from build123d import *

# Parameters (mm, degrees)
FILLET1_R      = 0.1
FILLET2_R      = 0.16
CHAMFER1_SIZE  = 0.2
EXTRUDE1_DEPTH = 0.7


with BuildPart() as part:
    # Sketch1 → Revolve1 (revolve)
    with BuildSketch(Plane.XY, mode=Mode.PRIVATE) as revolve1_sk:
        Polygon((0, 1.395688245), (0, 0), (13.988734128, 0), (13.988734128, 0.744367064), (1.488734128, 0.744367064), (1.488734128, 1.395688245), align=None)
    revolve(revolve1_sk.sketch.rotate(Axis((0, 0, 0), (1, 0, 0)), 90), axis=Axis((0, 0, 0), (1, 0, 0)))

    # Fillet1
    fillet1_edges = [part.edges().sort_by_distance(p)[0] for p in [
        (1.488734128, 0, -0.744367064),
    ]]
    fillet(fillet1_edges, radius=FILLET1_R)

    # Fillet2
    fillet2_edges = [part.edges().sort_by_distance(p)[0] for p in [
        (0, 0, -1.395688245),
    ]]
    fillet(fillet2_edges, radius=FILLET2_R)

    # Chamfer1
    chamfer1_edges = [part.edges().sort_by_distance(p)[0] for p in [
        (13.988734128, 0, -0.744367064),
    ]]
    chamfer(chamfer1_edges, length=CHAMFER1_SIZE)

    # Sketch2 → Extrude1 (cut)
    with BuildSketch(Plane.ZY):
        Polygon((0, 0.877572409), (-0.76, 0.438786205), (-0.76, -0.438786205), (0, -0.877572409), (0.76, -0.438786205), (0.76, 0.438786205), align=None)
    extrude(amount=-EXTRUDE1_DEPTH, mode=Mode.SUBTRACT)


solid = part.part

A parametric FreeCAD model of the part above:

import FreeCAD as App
import Part
import Sketcher

V = App.Vector
Q = App.Units.Quantity


def edges_at(feature, points):
    """Names of the edges that pass closest to the given points."""
    edges = feature.Shape.Edges
    near = lambda p: min(range(len(edges)), key=lambda i: edges[i].distToShape(Part.Vertex(*p))[0])
    return sorted({f"Edge{near(p) + 1}" for p in points})


def add_polygon(sketch, points):
    """Adds a closed chain of lines whose ends are joined by coincident constraints."""
    first, n = sketch.GeometryCount, len(points)
    for a, b in zip(points, points[1:] + points[:1]):
        sketch.addGeometry(Part.LineSegment(App.Vector(*a, 0), App.Vector(*b, 0)), False)
    for i in range(n):
        sketch.addConstraint(Sketcher.Constraint("Coincident", first + i, 2, first + (i + 1) % n, 1))

doc = App.newDocument("Part")
params = doc.addObject("Spreadsheet::Sheet", "Params")
for row, (alias, value) in enumerate([
    ("sketch1_width", "12.5 mm"),
    ("revolution_angle", "360 deg"),
    ("fillet_radius", "0.1 mm"),
    ("fillet2_radius", "0.16 mm"),
    ("chamfer_size", "0.2 mm"),
    ("pocket1_length", "0.7 mm"),
], start=1):
    params.set(f"A{row}", alias)
    params.set(f"B{row}", "=" + value)
    params.setAlias(f"B{row}", alias)

body = doc.addObject("PartDesign::Body", "Body")

sketch1 = body.newObject("Sketcher::SketchObject", "Sketch")
sketch1.AttachmentSupport = (doc.getObject("XY_Plane"), [""])
sketch1.MapMode = "FlatFace"
add_polygon(sketch1, [(0, 1.395688), (0, 0), (13.988734, 0), (13.988734, 0.744367), (1.488734, 0.744367), (1.488734, 1.395688)])
sketch1.addConstraint([
    Sketcher.Constraint("Vertical", 0),
    Sketcher.Constraint("Horizontal", 1),
    Sketcher.Constraint("Vertical", 2),
    Sketcher.Constraint("Horizontal", 3),
    Sketcher.Constraint("Vertical", 4),
    Sketcher.Constraint("Horizontal", 5),
    Sketcher.Constraint("Coincident", 0, 2, -1, 1),
    Sketcher.Constraint("DistanceX", 3, 2, 3, 1, Q("12.5 mm")),
    Sketcher.Constraint("DistanceY", 0, 2, 0, 1, Q("1.395688 mm")),
    Sketcher.Constraint("DistanceY", 4, 1, 4, 2, Q("0.651321 mm")),
    Sketcher.Constraint("DistanceX", 1, 1, 1, 2, Q("13.988734 mm")),
])
sketch1.setExpression("Constraints[13]", "Params.sketch1_width")
revolution = body.newObject("PartDesign::Revolution", "Revolution")
revolution.Profile = sketch1
revolution.ReferenceAxis = (sketch1, ["H_Axis"])
revolution.setExpression("Angle", "Params.revolution_angle")
doc.recompute()

fillet = body.newObject("PartDesign::Fillet", "Fillet")
fillet.Base = (revolution, edges_at(revolution, [(1.489, 0, -0.744)]))
fillet.setExpression("Radius", "Params.fillet_radius")
doc.recompute()

fillet2 = body.newObject("PartDesign::Fillet", "Fillet001")
fillet2.Base = (fillet, edges_at(fillet, [(0, 0, -1.396)]))
fillet2.setExpression("Radius", "Params.fillet2_radius")
doc.recompute()

chamfer = body.newObject("PartDesign::Chamfer", "Chamfer")
chamfer.Base = (fillet2, edges_at(fillet2, [(13.989, 0, -0.744)]))
chamfer.setExpression("Size", "Params.chamfer_size")

sketch2 = body.newObject("Sketcher::SketchObject", "Sketch001")
sketch2.AttachmentSupport = (doc.getObject("YZ_Plane"), [""])
sketch2.MapMode = "FlatFace"
add_polygon(sketch2, [(0.877572, 0), (0.438786, -0.76), (-0.438786, -0.76), (-0.877572, 0), (-0.438786, 0.76), (0.438786, 0.76)])
sketch2.addConstraint([
    Sketcher.Constraint("Horizontal", 1),
    Sketcher.Constraint("Horizontal", 4),
    Sketcher.Constraint("Symmetric", 0, 2, 3, 2, -1, 1),
    Sketcher.Constraint("Symmetric", 2, 2, 5, 2, -1, 1),
    Sketcher.Constraint("PointOnObject", 2, 2, -1),
    Sketcher.Constraint("Parallel", 2, 5),
    Sketcher.Constraint("Vertical", 1, 2, 3, 2),
    Sketcher.Constraint("Angle", 0, Q("-120 deg")),
    Sketcher.Constraint("DistanceY", 0, 2, -1, 1, Q("0.76 mm")),
    Sketcher.Constraint("DistanceX", 1, 2, 1, 1, Q("0.877572 mm")),
])
pocket1 = body.newObject("PartDesign::Pocket", "Pocket")
pocket1.Profile = sketch2
pocket1.setExpression("Length", "Params.pocket1_length")
pocket1.Reversed = True

doc.recompute()
